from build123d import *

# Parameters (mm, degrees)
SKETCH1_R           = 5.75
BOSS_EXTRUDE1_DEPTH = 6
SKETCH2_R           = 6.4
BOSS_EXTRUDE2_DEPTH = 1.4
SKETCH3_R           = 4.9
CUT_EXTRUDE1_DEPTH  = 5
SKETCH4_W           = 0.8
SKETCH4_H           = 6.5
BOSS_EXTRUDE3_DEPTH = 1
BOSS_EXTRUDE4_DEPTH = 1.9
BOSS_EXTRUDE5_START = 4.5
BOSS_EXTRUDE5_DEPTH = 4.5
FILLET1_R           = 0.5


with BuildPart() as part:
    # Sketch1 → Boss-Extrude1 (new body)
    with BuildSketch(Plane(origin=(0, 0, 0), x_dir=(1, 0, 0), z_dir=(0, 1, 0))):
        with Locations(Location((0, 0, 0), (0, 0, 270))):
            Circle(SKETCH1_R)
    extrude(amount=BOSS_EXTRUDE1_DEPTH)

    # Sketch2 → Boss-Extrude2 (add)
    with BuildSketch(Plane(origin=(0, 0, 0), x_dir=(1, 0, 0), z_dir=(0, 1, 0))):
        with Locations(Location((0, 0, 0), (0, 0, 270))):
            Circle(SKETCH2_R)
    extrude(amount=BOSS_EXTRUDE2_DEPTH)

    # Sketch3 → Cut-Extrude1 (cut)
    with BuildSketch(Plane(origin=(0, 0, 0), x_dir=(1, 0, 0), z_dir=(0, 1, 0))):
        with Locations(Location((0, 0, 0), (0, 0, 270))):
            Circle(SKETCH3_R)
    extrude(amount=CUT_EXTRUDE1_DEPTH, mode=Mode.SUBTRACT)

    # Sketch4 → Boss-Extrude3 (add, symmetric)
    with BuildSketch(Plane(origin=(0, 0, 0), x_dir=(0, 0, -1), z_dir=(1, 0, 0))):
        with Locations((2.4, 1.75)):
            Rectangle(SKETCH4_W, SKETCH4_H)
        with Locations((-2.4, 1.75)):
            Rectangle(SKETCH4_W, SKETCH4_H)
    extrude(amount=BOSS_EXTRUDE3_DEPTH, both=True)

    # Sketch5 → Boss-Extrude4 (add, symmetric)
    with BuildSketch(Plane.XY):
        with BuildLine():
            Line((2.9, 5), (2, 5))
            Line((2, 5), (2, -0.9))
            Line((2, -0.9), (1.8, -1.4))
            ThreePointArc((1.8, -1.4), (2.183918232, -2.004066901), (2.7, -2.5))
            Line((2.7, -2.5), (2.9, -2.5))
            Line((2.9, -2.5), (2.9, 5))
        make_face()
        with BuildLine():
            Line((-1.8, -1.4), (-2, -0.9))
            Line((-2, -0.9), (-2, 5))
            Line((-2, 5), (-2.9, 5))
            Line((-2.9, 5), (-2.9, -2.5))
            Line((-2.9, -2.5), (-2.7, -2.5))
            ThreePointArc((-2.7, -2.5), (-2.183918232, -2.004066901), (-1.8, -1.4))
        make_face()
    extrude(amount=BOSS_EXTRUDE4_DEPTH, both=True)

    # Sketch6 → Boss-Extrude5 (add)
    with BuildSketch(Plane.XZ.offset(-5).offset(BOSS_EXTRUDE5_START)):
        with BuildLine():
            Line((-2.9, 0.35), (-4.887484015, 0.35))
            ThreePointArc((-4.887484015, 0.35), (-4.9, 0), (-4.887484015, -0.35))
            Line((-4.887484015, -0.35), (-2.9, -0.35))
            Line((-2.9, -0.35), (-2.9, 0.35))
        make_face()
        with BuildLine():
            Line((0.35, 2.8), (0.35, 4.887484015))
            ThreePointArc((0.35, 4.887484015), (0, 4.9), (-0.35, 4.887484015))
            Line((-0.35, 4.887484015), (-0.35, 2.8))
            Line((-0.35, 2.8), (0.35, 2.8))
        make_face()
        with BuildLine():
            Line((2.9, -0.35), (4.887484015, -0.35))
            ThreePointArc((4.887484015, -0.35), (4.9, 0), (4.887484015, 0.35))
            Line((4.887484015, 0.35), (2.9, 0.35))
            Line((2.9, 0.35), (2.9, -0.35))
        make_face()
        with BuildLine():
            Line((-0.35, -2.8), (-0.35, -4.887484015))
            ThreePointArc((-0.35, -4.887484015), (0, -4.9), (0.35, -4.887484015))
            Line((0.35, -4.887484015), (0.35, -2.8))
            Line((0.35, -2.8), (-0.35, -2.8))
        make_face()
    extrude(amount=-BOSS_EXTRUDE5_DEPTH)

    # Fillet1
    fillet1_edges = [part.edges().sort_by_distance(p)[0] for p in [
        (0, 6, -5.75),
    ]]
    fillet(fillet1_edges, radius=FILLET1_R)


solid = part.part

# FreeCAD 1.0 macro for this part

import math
import FreeCAD as App
import Part
import Sketcher
Q = App.Units.Quantity


def edges_at(feature, points):
    """Names of the edges that pass closest to the given points."""
    edges = feature.Shape.Edges
    near = lambda p: min(range(len(edges)), key=lambda i: edges[i].distToShape(Part.Vertex(*p))[0])
    return sorted({f"Edge{near(p) + 1}" for p in points})

doc = App.newDocument("Part")
params = doc.addObject("Spreadsheet::Sheet", "Params")
for row, (alias, value) in enumerate([
    ("sketch1_diameter", "11.5 mm"),
    ("pad1_length", "6 mm"),
    ("sketch2_diameter", "12.8 mm"),
    ("pad2_length", "1.4 mm"),
    ("sketch3_diameter", "9.8 mm"),
    ("pocket1_length", "5 mm"),
    ("sketch4_width", "6.5 mm"),
    ("sketch4_height", "0.8 mm"),
    ("pad3_length", "2 mm"),
    ("sketch5_radius", "3 mm"),
    ("sketch5_width", "0.9 mm"),
    ("sketch5_width2", "0.2 mm"),
    ("sketch5_height", "5.9 mm"),
    ("sketch5_height2", "7.5 mm"),
    ("pad4_length", "3.8 mm"),
    ("sketch6_radius", "4.9 mm"),
    ("sketch6_width", "0.7 mm"),
    ("pad5_length", "4.5 mm"),
    ("fillet_radius", "0.5 mm"),
], start=1):
    params.set(f"A{row}", alias)
    params.set(f"B{row}", "=" + value)
    params.setAlias(f"B{row}", alias)

body = doc.addObject("PartDesign::Body", "Body")

sketch1 = body.newObject("Sketcher::SketchObject", "Sketch")
sketch1.AttachmentSupport = (doc.getObject("XZ_Plane"), [""])
sketch1.MapMode = "FlatFace"
sketch1.addGeometry(Part.Circle(App.Vector(0, 0, 0), App.Vector(0, 0, 1), 5.75), False)
sketch1.addConstraint(Sketcher.Constraint("Coincident", 0, 3, -1, 1))
sketch1.addConstraint(Sketcher.Constraint("Diameter", 0, Q("11.5 mm")))
sketch1.setExpression("Constraints[1]", "Params.sketch1_diameter")
pad1 = body.newObject("PartDesign::Pad", "Pad")
pad1.Profile = sketch1
pad1.setExpression("Length", "Params.pad1_length")
pad1.Reversed = True

sketch2 = body.newObject("Sketcher::SketchObject", "Sketch001")
sketch2.AttachmentSupport = (doc.getObject("XZ_Plane"), [""])
sketch2.MapMode = "FlatFace"
sketch2.addGeometry(Part.Circle(App.Vector(0, 0, 0), App.Vector(0, 0, 1), 6.4), False)
sketch2.addConstraint(Sketcher.Constraint("Coincident", 0, 3, -1, 1))
sketch2.addConstraint(Sketcher.Constraint("Diameter", 0, Q("12.8 mm")))
sketch2.setExpression("Constraints[1]", "Params.sketch2_diameter")
pad2 = body.newObject("PartDesign::Pad", "Pad001")
pad2.Profile = sketch2
pad2.setExpression("Length", "Params.pad2_length")
pad2.Reversed = True

sketch3 = body.newObject("Sketcher::SketchObject", "Sketch002")
sketch3.AttachmentSupport = (doc.getObject("XZ_Plane"), [""])
sketch3.MapMode = "FlatFace"
sketch3.addGeometry(Part.Circle(App.Vector(0, 0, 0), App.Vector(0, 0, 1), 4.9), False)
sketch3.addConstraint(Sketcher.Constraint("Coincident", 0, 3, -1, 1))
sketch3.addConstraint(Sketcher.Constraint("Diameter", 0, Q("9.8 mm")))
sketch3.setExpression("Constraints[1]", "Params.sketch3_diameter")
pocket1 = body.newObject("PartDesign::Pocket", "Pocket")
pocket1.Profile = sketch3
pocket1.setExpression("Length", "Params.pocket1_length")

sketch4 = body.newObject("Sketcher::SketchObject", "Sketch003")
sketch4.AttachmentSupport = (doc.getObject("YZ_Plane"), [""])
sketch4.MapMode = "FlatFace"
sketch4.addGeometry(Part.LineSegment(App.Vector(5, -2, 0), App.Vector(-1.5, -2, 0)), False)
sketch4.addGeometry(Part.LineSegment(App.Vector(-1.5, -2, 0), App.Vector(-1.5, -2.8, 0)), False)
sketch4.addGeometry(Part.LineSegment(App.Vector(-1.5, -2.8, 0), App.Vector(5, -2.8, 0)), False)
sketch4.addGeometry(Part.LineSegment(App.Vector(5, -2.8, 0), App.Vector(5, -2, 0)), False)
sketch4.addGeometry(Part.LineSegment(App.Vector(5, 2.8, 0), App.Vector(-1.5, 2.8, 0)), False)
sketch4.addGeometry(Part.LineSegment(App.Vector(-1.5, 2.8, 0), App.Vector(-1.5, 2, 0)), False)
sketch4.addGeometry(Part.LineSegment(App.Vector(-1.5, 2, 0), App.Vector(5, 2, 0)), False)
sketch4.addGeometry(Part.LineSegment(App.Vector(5, 2, 0), App.Vector(5, 2.8, 0)), False)
sketch4.addConstraint(Sketcher.Constraint("Coincident", 0, 2, 1, 1))
sketch4.addConstraint(Sketcher.Constraint("Coincident", 1, 2, 2, 1))
sketch4.addConstraint(Sketcher.Constraint("Coincident", 2, 2, 3, 1))
sketch4.addConstraint(Sketcher.Constraint("Coincident", 3, 2, 0, 1))
sketch4.addConstraint(Sketcher.Constraint("Coincident", 4, 2, 5, 1))
sketch4.addConstraint(Sketcher.Constraint("Coincident", 5, 2, 6, 1))
sketch4.addConstraint(Sketcher.Constraint("Coincident", 6, 2, 7, 1))
sketch4.addConstraint(Sketcher.Constraint("Coincident", 7, 2, 4, 1))
sketch4.addConstraint(Sketcher.Constraint("Horizontal", 0))
sketch4.addConstraint(Sketcher.Constraint("Vertical", 1))
sketch4.addConstraint(Sketcher.Constraint("Horizontal", 2))
sketch4.addConstraint(Sketcher.Constraint("Vertical", 3))
sketch4.addConstraint(Sketcher.Constraint("Horizontal", 4))
sketch4.addConstraint(Sketcher.Constraint("Vertical", 5))
sketch4.addConstraint(Sketcher.Constraint("Horizontal", 6))
sketch4.addConstraint(Sketcher.Constraint("Vertical", 7))
sketch4.addConstraint(Sketcher.Constraint("Symmetric", 1, 2, 4, 2, -1))
sketch4.addConstraint(Sketcher.Constraint("Symmetric", 3, 2, 6, 2, -1))
sketch4.addConstraint(Sketcher.Constraint("DistanceX", 0, 2, 0, 1, Q("6.5 mm")))
sketch4.addConstraint(Sketcher.Constraint("DistanceY", 1, 2, 1, 1, Q("0.8 mm")))
sketch4.addConstraint(Sketcher.Constraint("DistanceY", 0, 2, -1, 1, Q("2 mm")))
sketch4.addConstraint(Sketcher.Constraint("DistanceX", -1, 1, 2, 2, Q("5 mm")))
sketch4.setExpression("Constraints[18]", "Params.sketch4_width")
sketch4.setExpression("Constraints[19]", "Params.sketch4_height")
pad3 = body.newObject("PartDesign::Pad", "Pad002")
pad3.Profile = sketch4
pad3.setExpression("Length", "Params.pad3_length")
pad3.Midplane = True

sketch5 = body.newObject("Sketcher::SketchObject", "Sketch004")
sketch5.AttachmentSupport = (doc.getObject("XY_Plane"), [""])
sketch5.MapMode = "FlatFace"
sketch5.addGeometry(Part.LineSegment(App.Vector(2.9, 5, 0), App.Vector(2, 5, 0)), False)
sketch5.addGeometry(Part.LineSegment(App.Vector(2, 5, 0), App.Vector(2, -0.9, 0)), False)
sketch5.addGeometry(Part.LineSegment(App.Vector(2, -0.9, 0), App.Vector(1.8, -1.4, 0)), False)
sketch5.addGeometry(Part.ArcOfCircle(Part.Circle(App.Vector(4.50579, -0.104354, 0), App.Vector(0, 0, 1), 3), math.radians(-154.412934), math.radians(-127.008252)), False)
sketch5.addGeometry(Part.LineSegment(App.Vector(2.7, -2.5, 0), App.Vector(2.9, -2.5, 0)), False)
sketch5.addGeometry(Part.LineSegment(App.Vector(2.9, -2.5, 0), App.Vector(2.9, 5, 0)), False)
sketch5.addGeometry(Part.LineSegment(App.Vector(-1.8, -1.4, 0), App.Vector(-2, -0.9, 0)), False)
sketch5.addGeometry(Part.LineSegment(App.Vector(-2, -0.9, 0), App.Vector(-2, 5, 0)), False)
sketch5.addGeometry(Part.LineSegment(App.Vector(-2, 5, 0), App.Vector(-2.9, 5, 0)), False)
sketch5.addGeometry(Part.LineSegment(App.Vector(-2.9, 5, 0), App.Vector(-2.9, -2.5, 0)), False)
sketch5.addGeometry(Part.LineSegment(App.Vector(-2.9, -2.5, 0), App.Vector(-2.7, -2.5, 0)), False)
sketch5.addGeometry(Part.ArcOfCircle(Part.Circle(App.Vector(-4.50579, -0.104354, 0), App.Vector(0, 0, 1), 3), math.radians(-52.991748), math.radians(-25.587066)), False)
sketch5.addConstraint(Sketcher.Constraint("Coincident", 0, 2, 1, 1))
sketch5.addConstraint(Sketcher.Constraint("Coincident", 1, 2, 2, 1))
sketch5.addConstraint(Sketcher.Constraint("Coincident", 2, 2, 3, 1))
sketch5.addConstraint(Sketcher.Constraint("Coincident", 3, 2, 4, 1))
sketch5.addConstraint(Sketcher.Constraint("Coincident", 4, 2, 5, 1))
sketch5.addConstraint(Sketcher.Constraint("Coincident", 5, 2, 0, 1))
sketch5.addConstraint(Sketcher.Constraint("Coincident", 6, 2, 7, 1))
sketch5.addConstraint(Sketcher.Constraint("Coincident", 7, 2, 8, 1))
sketch5.addConstraint(Sketcher.Constraint("Coincident", 8, 2, 9, 1))
sketch5.addConstraint(Sketcher.Constraint("Coincident", 9, 2, 10, 1))
sketch5.addConstraint(Sketcher.Constraint("Coincident", 10, 2, 11, 1))
sketch5.addConstraint(Sketcher.Constraint("Coincident", 11, 2, 6, 1))
sketch5.addConstraint(Sketcher.Constraint("Horizontal", 0))
sketch5.addConstraint(Sketcher.Constraint("Vertical", 1))
sketch5.addConstraint(Sketcher.Constraint("Horizontal", 4))
sketch5.addConstraint(Sketcher.Constraint("Vertical", 5))
sketch5.addConstraint(Sketcher.Constraint("Vertical", 7))
sketch5.addConstraint(Sketcher.Constraint("Horizontal", 8))
sketch5.addConstraint(Sketcher.Constraint("Vertical", 9))
sketch5.addConstraint(Sketcher.Constraint("Horizontal", 10))
sketch5.addConstraint(Sketcher.Constraint("Equal", 3, 11))
sketch5.addConstraint(Sketcher.Constraint("Symmetric", 3, 3, 11, 3, -2))
sketch5.addConstraint(Sketcher.Constraint("Symmetric", 1, 2, 6, 2, -2))
sketch5.addConstraint(Sketcher.Constraint("Symmetric", 5, 2, 8, 2, -2))
sketch5.addConstraint(Sketcher.Constraint("Horizontal", 4, 2, 9, 2))
sketch5.addConstraint(Sketcher.Constraint("Horizontal", 2, 2, 11, 2))
sketch5.addConstraint(Sketcher.Constraint("Radius", 3, Q("3 mm")))
sketch5.addConstraint(Sketcher.Constraint("DistanceX", 0, 2, 0, 1, Q("0.9 mm")))
sketch5.addConstraint(Sketcher.Constraint("DistanceX", 4, 1, 4, 2, Q("0.2 mm")))
sketch5.addConstraint(Sketcher.Constraint("DistanceY", 1, 2, 1, 1, Q("5.9 mm")))
sketch5.addConstraint(Sketcher.Constraint("DistanceY", 5, 1, 5, 2, Q("7.5 mm")))
sketch5.addConstraint(Sketcher.Constraint("DistanceX", -1, 1, 0, 2, Q("2 mm")))
sketch5.addConstraint(Sketcher.Constraint("DistanceY", -1, 1, 0, 2, Q("5 mm")))
sketch5.addConstraint(Sketcher.Constraint("DistanceX", -1, 1, 2, 2, Q("1.8 mm")))
sketch5.addConstraint(Sketcher.Constraint("DistanceY", 2, 2, -1, 1, Q("1.4 mm")))
sketch5.setExpression("Constraints[26]", "Params.sketch5_radius")
sketch5.setExpression("Constraints[27]", "Params.sketch5_width")
sketch5.setExpression("Constraints[28]", "Params.sketch5_width2")
sketch5.setExpression("Constraints[29]", "Params.sketch5_height")
sketch5.setExpression("Constraints[30]", "Params.sketch5_height2")
pad4 = body.newObject("PartDesign::Pad", "Pad003")
pad4.Profile = sketch5
pad4.setExpression("Length", "Params.pad4_length")
pad4.Midplane = True

sketch6 = body.newObject("Sketcher::SketchObject", "Sketch005")
sketch6.AttachmentSupport = (doc.getObject("XZ_Plane"), [""])
sketch6.MapMode = "FlatFace"
sketch6.AttachmentOffset = App.Placement(App.Vector(0, 0, -0.5), App.Rotation())
sketch6.addGeometry(Part.LineSegment(App.Vector(-2.9, 0.35, 0), App.Vector(-4.887484, 0.35, 0)), False)
sketch6.addGeometry(Part.ArcOfCircle(Part.Circle(App.Vector(0, 0, 0), App.Vector(0, 0, 1), 4.9), math.radians(175.903956), math.radians(184.096044)), False)
sketch6.addGeometry(Part.LineSegment(App.Vector(-4.887484, -0.35, 0), App.Vector(-2.9, -0.35, 0)), False)
sketch6.addGeometry(Part.LineSegment(App.Vector(-2.9, -0.35, 0), App.Vector(-2.9, 0.35, 0)), False)
sketch6.addGeometry(Part.LineSegment(App.Vector(0.35, 2.8, 0), App.Vector(0.35, 4.887484, 0)), False)
sketch6.addGeometry(Part.ArcOfCircle(Part.Circle(App.Vector(0, 0, 0), App.Vector(0, 0, 1), 4.9), math.radians(85.903956), math.radians(94.096044)), False)
sketch6.addGeometry(Part.LineSegment(App.Vector(-0.35, 4.887484, 0), App.Vector(-0.35, 2.8, 0)), False)
sketch6.addGeometry(Part.LineSegment(App.Vector(-0.35, 2.8, 0), App.Vector(0.35, 2.8, 0)), False)
sketch6.addGeometry(Part.LineSegment(App.Vector(2.9, -0.35, 0), App.Vector(4.887484, -0.35, 0)), False)
sketch6.addGeometry(Part.ArcOfCircle(Part.Circle(App.Vector(0, 0, 0), App.Vector(0, 0, 1), 4.9), math.radians(-4.096044), math.radians(4.096044)), False)
sketch6.addGeometry(Part.LineSegment(App.Vector(4.887484, 0.35, 0), App.Vector(2.9, 0.35, 0)), False)
sketch6.addGeometry(Part.LineSegment(App.Vector(2.9, 0.35, 0), App.Vector(2.9, -0.35, 0)), False)
sketch6.addGeometry(Part.LineSegment(App.Vector(-0.35, -2.8, 0), App.Vector(-0.35, -4.887484, 0)), False)
sketch6.addGeometry(Part.ArcOfCircle(Part.Circle(App.Vector(0, 0, 0), App.Vector(0, 0, 1), 4.9), math.radians(-94.096044), math.radians(-85.903956)), False)
sketch6.addGeometry(Part.LineSegment(App.Vector(0.35, -4.887484, 0), App.Vector(0.35, -2.8, 0)), False)
sketch6.addGeometry(Part.LineSegment(App.Vector(0.35, -2.8, 0), App.Vector(-0.35, -2.8, 0)), False)
sketch6.addConstraint(Sketcher.Constraint("Coincident", 0, 2, 1, 1))
sketch6.addConstraint(Sketcher.Constraint("Coincident", 1, 2, 2, 1))
sketch6.addConstraint(Sketcher.Constraint("Coincident", 2, 2, 3, 1))
sketch6.addConstraint(Sketcher.Constraint("Coincident", 3, 2, 0, 1))
sketch6.addConstraint(Sketcher.Constraint("Coincident", 4, 2, 5, 1))
sketch6.addConstraint(Sketcher.Constraint("Coincident", 5, 2, 6, 1))
sketch6.addConstraint(Sketcher.Constraint("Coincident", 6, 2, 7, 1))
sketch6.addConstraint(Sketcher.Constraint("Coincident", 7, 2, 4, 1))
sketch6.addConstraint(Sketcher.Constraint("Coincident", 8, 2, 9, 1))
sketch6.addConstraint(Sketcher.Constraint("Coincident", 9, 2, 10, 1))
sketch6.addConstraint(Sketcher.Constraint("Coincident", 10, 2, 11, 1))
sketch6.addConstraint(Sketcher.Constraint("Coincident", 11, 2, 8, 1))
sketch6.addConstraint(Sketcher.Constraint("Coincident", 12, 2, 13, 1))
sketch6.addConstraint(Sketcher.Constraint("Coincident", 13, 2, 14, 1))
sketch6.addConstraint(Sketcher.Constraint("Coincident", 14, 2, 15, 1))
sketch6.addConstraint(Sketcher.Constraint("Coincident", 15, 2, 12, 1))
sketch6.addConstraint(Sketcher.Constraint("Horizontal", 0))
sketch6.addConstraint(Sketcher.Constraint("Horizontal", 2))
sketch6.addConstraint(Sketcher.Constraint("Vertical", 3))
sketch6.addConstraint(Sketcher.Constraint("Vertical", 4))
sketch6.addConstraint(Sketcher.Constraint("Vertical", 6))
sketch6.addConstraint(Sketcher.Constraint("Horizontal", 7))
sketch6.addConstraint(Sketcher.Constraint("Horizontal", 8))
sketch6.addConstraint(Sketcher.Constraint("Horizontal", 10))
sketch6.addConstraint(Sketcher.Constraint("Vertical", 11))
sketch6.addConstraint(Sketcher.Constraint("Vertical", 12))
sketch6.addConstraint(Sketcher.Constraint("Vertical", 14))
sketch6.addConstraint(Sketcher.Constraint("Horizontal", 15))
sketch6.addConstraint(Sketcher.Constraint("Coincident", 1, 3, -1, 1))
sketch6.addConstraint(Sketcher.Constraint("Coincident", 5, 3, -1, 1))
sketch6.addConstraint(Sketcher.Constraint("Coincident", 9, 3, -1, 1))
sketch6.addConstraint(Sketcher.Constraint("Coincident", 13, 3, -1, 1))
sketch6.addConstraint(Sketcher.Constraint("Equal", 1, 5))
sketch6.addConstraint(Sketcher.Constraint("Equal", 5, 9))
sketch6.addConstraint(Sketcher.Constraint("Equal", 9, 13))
sketch6.addConstraint(Sketcher.Constraint("Symmetric", 2, 2, 10, 2, -1, 1))
sketch6.addConstraint(Sketcher.Constraint("Symmetric", 6, 2, 14, 2, -1, 1))
sketch6.addConstraint(Sketcher.Constraint("Horizontal", 4, 2, 5, 2))
sketch6.addConstraint(Sketcher.Constraint("Horizontal", 2, 2, 8, 2))
sketch6.addConstraint(Sketcher.Constraint("Horizontal", 3, 2, 9, 2))
sketch6.addConstraint(Sketcher.Constraint("Horizontal", 12, 2, 13, 2))
sketch6.addConstraint(Sketcher.Constraint("Equal", 15, 3))
sketch6.addConstraint(Sketcher.Constraint("Radius", 1, Q("4.9 mm")))
sketch6.addConstraint(Sketcher.Constraint("DistanceX", 7, 1, 7, 2, Q("0.7 mm")))
sketch6.addConstraint(Sketcher.Constraint("DistanceX", 2, 2, -1, 1, Q("2.9 mm")))
sketch6.addConstraint(Sketcher.Constraint("DistanceY", -1, 1, 6, 2, Q("2.8 mm")))
sketch6.setExpression("Constraints[42]", "Params.sketch6_radius")
sketch6.setExpression("Constraints[43]", "Params.sketch6_width")
pad5 = body.newObject("PartDesign::Pad", "Pad004")
pad5.Profile = sketch6
pad5.setExpression("Length", "Params.pad5_length")
pad5.Reversed = True
doc.recompute()

fillet = body.newObject("PartDesign::Fillet", "Fillet")
fillet.Base = (pad5, edges_at(pad5, [(0, 6, -5.75)]))
fillet.setExpression("Radius", "Params.fillet_radius")

doc.recompute()
